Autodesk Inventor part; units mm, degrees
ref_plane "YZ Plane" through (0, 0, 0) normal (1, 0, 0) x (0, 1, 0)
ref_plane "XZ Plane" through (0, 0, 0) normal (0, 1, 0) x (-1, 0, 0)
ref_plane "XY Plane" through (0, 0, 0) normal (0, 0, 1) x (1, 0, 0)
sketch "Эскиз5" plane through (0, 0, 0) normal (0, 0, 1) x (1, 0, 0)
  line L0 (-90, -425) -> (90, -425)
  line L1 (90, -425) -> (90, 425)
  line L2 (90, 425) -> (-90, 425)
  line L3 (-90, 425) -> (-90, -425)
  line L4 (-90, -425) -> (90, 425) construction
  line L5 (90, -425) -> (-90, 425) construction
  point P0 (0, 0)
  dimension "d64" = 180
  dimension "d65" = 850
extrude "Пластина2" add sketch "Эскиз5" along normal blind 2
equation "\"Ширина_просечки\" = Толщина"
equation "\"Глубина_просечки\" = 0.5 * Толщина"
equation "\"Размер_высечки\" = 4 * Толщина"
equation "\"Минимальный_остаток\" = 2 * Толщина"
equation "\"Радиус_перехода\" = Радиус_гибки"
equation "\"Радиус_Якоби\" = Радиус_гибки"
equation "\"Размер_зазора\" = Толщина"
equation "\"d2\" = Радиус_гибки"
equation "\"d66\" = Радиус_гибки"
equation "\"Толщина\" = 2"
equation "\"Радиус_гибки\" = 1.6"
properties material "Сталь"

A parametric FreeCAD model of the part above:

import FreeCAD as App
import Part
import Sketcher
from FreeCAD import Vector
Q = App.Units.Quantity


def add_polygon(sketch, points):
    """Adds a closed chain of lines whose ends are joined by coincident constraints."""
    first, n = sketch.GeometryCount, len(points)
    for a, b in zip(points, points[1:] + points[:1]):
        sketch.addGeometry(Part.LineSegment(App.Vector(*a, 0), App.Vector(*b, 0)), False)
    for i in range(n):
        sketch.addConstraint(Sketcher.Constraint("Coincident", first + i, 2, first + (i + 1) % n, 1))

doc = App.newDocument("Part")
body = doc.addObject("PartDesign::Body", "Body")

# Sketch on XY plane
sketch1 = body.newObject("Sketcher::SketchObject", "Sketch")
sketch1.AttachmentSupport = (doc.getObject("XY_Plane"), [""])
sketch1.MapMode = "FlatFace"
add_polygon(sketch1, [(-90, 425), (-90, -425), (90, -425), (90, 425)])  # lines 0-3
sketch1.addConstraint(Sketcher.Constraint("Vertical", 0))
sketch1.addConstraint(Sketcher.Constraint("Horizontal", 1))
sketch1.addConstraint(Sketcher.Constraint("Vertical", 2))
sketch1.addConstraint(Sketcher.Constraint("Horizontal", 3))
sketch1.addConstraint(Sketcher.Constraint("Symmetric", 0, 2, 2, 2, -1, 1))
sketch1.addConstraint(Sketcher.Constraint("DistanceX", 1, 1, 1, 2, Q("180 mm")))
sketch1.addConstraint(Sketcher.Constraint("DistanceY", 0, 2, 0, 1, Q("850 mm")))
pad1 = body.newObject("PartDesign::Pad", "Pad")
pad1.Profile = sketch1
pad1.Length = 2

doc.recompute()
